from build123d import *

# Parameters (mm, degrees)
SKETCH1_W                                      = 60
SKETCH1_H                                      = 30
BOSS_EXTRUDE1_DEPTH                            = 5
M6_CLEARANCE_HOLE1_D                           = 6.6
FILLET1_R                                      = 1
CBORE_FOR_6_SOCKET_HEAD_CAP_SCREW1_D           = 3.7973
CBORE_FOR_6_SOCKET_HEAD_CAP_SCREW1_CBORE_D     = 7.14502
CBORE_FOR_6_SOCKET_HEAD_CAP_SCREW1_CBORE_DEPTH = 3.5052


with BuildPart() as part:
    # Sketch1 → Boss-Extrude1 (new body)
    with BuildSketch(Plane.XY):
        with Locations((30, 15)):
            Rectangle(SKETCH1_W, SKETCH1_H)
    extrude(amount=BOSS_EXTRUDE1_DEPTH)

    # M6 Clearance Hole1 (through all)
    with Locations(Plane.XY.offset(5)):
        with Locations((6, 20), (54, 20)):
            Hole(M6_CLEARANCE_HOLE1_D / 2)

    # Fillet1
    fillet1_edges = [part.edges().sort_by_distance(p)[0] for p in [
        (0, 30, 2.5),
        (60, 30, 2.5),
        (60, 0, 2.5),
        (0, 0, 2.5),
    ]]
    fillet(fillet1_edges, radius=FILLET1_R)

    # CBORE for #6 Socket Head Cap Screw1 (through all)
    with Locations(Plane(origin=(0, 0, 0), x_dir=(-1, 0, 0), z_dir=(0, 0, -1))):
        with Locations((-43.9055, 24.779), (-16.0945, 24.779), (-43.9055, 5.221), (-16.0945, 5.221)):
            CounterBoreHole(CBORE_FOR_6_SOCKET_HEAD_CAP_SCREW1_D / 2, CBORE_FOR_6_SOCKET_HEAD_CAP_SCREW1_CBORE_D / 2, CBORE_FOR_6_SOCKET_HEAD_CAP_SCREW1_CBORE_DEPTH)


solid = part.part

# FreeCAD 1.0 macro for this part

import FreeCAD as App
import Part
import Sketcher
from FreeCAD import Vector
Q = App.Units.Quantity


def edges_at(feature, points):
    """Names of the edges that pass closest to the given points."""
    edges = feature.Shape.Edges
    near = lambda p: min(range(len(edges)), key=lambda i: edges[i].distToShape(Part.Vertex(*p))[0])
    return sorted({f"Edge{near(p) + 1}" for p in points})


def add_polygon(sketch, points):
    """Adds a closed chain of lines whose ends are joined by coincident constraints."""
    first, n = sketch.GeometryCount, len(points)
    for a, b in zip(points, points[1:] + points[:1]):
        sketch.addGeometry(Part.LineSegment(App.Vector(*a, 0), App.Vector(*b, 0)), False)
    for i in range(n):
        sketch.addConstraint(Sketcher.Constraint("Coincident", first + i, 2, first + (i + 1) % n, 1))

doc = App.newDocument("Part")
body = doc.addObject("PartDesign::Body", "Body")

# Sketch on XY plane
sketch1 = body.newObject("Sketcher::SketchObject", "Sketch")
sketch1.AttachmentSupport = (doc.getObject("XY_Plane"), [""])
sketch1.MapMode = "FlatFace"
add_polygon(sketch1, [(0, 30), (0, 0), (60, 0), (60, 30)])  # lines 0-3
sketch1.addConstraint(Sketcher.Constraint("Vertical", 0))
sketch1.addConstraint(Sketcher.Constraint("Horizontal", 1))
sketch1.addConstraint(Sketcher.Constraint("Vertical", 2))
sketch1.addConstraint(Sketcher.Constraint("Horizontal", 3))
sketch1.addConstraint(Sketcher.Constraint("Coincident", 0, 2, -1, 1))
sketch1.addConstraint(Sketcher.Constraint("DistanceX", 1, 1, 1, 2, Q("60 mm")))
sketch1.addConstraint(Sketcher.Constraint("DistanceY", 0, 2, 0, 1, Q("30 mm")))
pad1 = body.newObject("PartDesign::Pad", "Pad")
pad1.Profile = sketch1
pad1.Length = 5

# Sketch on XY plane
sketch2 = body.newObject("Sketcher::SketchObject", "Sketch001")
sketch2.AttachmentSupport = (doc.getObject("XY_Plane"), [""])
sketch2.MapMode = "FlatFace"
sketch2.AttachmentOffset = App.Placement(Vector(0, 0, 5), App.Rotation())
sketch2.addGeometry(Part.Circle(Vector(6, 20, 0), Vector(0, 0, 1), 3.3), False)
sketch2.addGeometry(Part.Circle(Vector(54, 20, 0), Vector(0, 0, 1), 3.3), False)
sketch2.addConstraint(Sketcher.Constraint("Equal", 0, 1))
sketch2.addConstraint(Sketcher.Constraint("Horizontal", 0, 3, 1, 3))
sketch2.addConstraint(Sketcher.Constraint("Diameter", 0, Q("6.6 mm")))
sketch2.addConstraint(Sketcher.Constraint("DistanceX", -1, 1, 0, 3, Q("6 mm")))
sketch2.addConstraint(Sketcher.Constraint("DistanceY", -1, 1, 0, 3, Q("20 mm")))
sketch2.addConstraint(Sketcher.Constraint("DistanceX", -1, 1, 1, 3, Q("54 mm")))
doc.recompute()
hole = body.newObject("PartDesign::Hole", "Hole")
hole.Profile = sketch2
hole.ThreadType = "None"
hole.Diameter = 6.6
hole.DepthType = "ThroughAll"
doc.recompute()

fillet = body.newObject("PartDesign::Fillet", "Fillet")
fillet.Base = (hole, edges_at(hole, [
    (0, 30, 2.5),
    (60, 30, 2.5),
    (60, 0, 2.5),
    (0, 0, 2.5),
]))
fillet.Radius = 1

# Sketch on XY plane
sketch3 = body.newObject("Sketcher::SketchObject", "Sketch002")
sketch3.AttachmentSupport = (doc.getObject("XY_Plane"), [""])
sketch3.MapMode = "FlatFace"
sketch3.addGeometry(Part.Circle(Vector(43.9055, 24.779, 0), Vector(0, 0, 1), 1.89865), False)
sketch3.addGeometry(Part.Circle(Vector(16.0945, 24.779, 0), Vector(0, 0, 1), 1.89865), False)
sketch3.addGeometry(Part.Circle(Vector(43.9055, 5.221, 0), Vector(0, 0, 1), 1.89865), False)
sketch3.addGeometry(Part.Circle(Vector(16.0945, 5.221, 0), Vector(0, 0, 1), 1.89865), False)
sketch3.addConstraint(Sketcher.Constraint("Equal", 0, 1))
sketch3.addConstraint(Sketcher.Constraint("Equal", 1, 2))
sketch3.addConstraint(Sketcher.Constraint("Equal", 2, 3))
sketch3.addConstraint(Sketcher.Constraint("Horizontal", 0, 3, 1, 3))
sketch3.addConstraint(Sketcher.Constraint("Horizontal", 2, 3, 3, 3))
sketch3.addConstraint(Sketcher.Constraint("Vertical", 0, 3, 2, 3))
sketch3.addConstraint(Sketcher.Constraint("Vertical", 1, 3, 3, 3))
sketch3.addConstraint(Sketcher.Constraint("Diameter", 0, Q("3.7973 mm")))
sketch3.addConstraint(Sketcher.Constraint("DistanceY", -1, 1, 0, 3, Q("24.779 mm")))
sketch3.addConstraint(Sketcher.Constraint("DistanceY", -1, 1, 2, 3, Q("5.221 mm")))
sketch3.addConstraint(Sketcher.Constraint("DistanceX", 1, 3, 0, 3, Q("27.811 mm")))
sketch3.addConstraint(Sketcher.Constraint("DistanceX", -1, 1, 0, 3, Q("43.9055 mm")))
doc.recompute()
hole2 = body.newObject("PartDesign::Hole", "Hole001")
hole2.Profile = sketch3
hole2.ThreadType = "None"
hole2.Diameter = 3.7973
hole2.DepthType = "ThroughAll"
hole2.HoleCutType = "Counterbore"
hole2.HoleCutDiameter = 7.14502
hole2.HoleCutDepth = 3.5052
hole2.Reversed = True

doc.recompute()
